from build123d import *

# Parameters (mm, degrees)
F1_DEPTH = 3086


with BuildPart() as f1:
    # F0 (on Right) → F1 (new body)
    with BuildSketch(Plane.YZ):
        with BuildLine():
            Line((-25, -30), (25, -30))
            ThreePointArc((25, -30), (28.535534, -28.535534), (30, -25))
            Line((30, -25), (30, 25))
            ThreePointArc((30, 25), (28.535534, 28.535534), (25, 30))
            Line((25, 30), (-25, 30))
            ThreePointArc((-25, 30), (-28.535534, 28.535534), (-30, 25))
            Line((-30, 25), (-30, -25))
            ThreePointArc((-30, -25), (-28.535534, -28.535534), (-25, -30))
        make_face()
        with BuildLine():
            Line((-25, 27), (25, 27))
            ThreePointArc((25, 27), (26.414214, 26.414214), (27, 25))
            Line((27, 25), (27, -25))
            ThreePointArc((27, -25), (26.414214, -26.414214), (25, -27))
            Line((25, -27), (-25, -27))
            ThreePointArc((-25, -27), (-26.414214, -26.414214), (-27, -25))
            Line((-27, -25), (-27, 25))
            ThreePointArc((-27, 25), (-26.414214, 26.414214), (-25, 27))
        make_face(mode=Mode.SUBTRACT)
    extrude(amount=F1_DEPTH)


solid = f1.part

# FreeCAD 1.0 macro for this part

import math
import FreeCAD as App
import Part
import Sketcher
from FreeCAD import Vector
Q = App.Units.Quantity

doc = App.newDocument("Part")
params = doc.addObject("Spreadsheet::Sheet", "Params")
for row, (alias, value) in enumerate([
    ("sketch1_radius", "5 mm"),
    ("sketch1_radius2", "1.999999 mm"),
    ("sketch1_width", "50 mm"),
    ("pad1_length", "3086 mm"),
], start=1):
    params.set(f"A{row}", alias)
    params.set(f"B{row}", "=" + value)
    params.setAlias(f"B{row}", alias)

body = doc.addObject("PartDesign::Body", "Body")

# Sketch on YZ plane
sketch1 = doc.addObject("Sketcher::SketchObject", "Sketch")
body.addObject(sketch1)
sketch1.AttachmentSupport = (doc.YZ_Plane, [""])
sketch1.MapMode = "FlatFace"
sketch1.addGeometry(Part.LineSegment(Vector(-25, -30, 0), Vector(25, -30, 0)), False)
sketch1.addGeometry(Part.ArcOfCircle(Part.Circle(Vector(25, -25, 0), Vector(0, 0, 1), 5), math.radians(-90), math.radians(0)), False)
sketch1.addGeometry(Part.LineSegment(Vector(30, -25, 0), Vector(30, 25, 0)), False)
sketch1.addGeometry(Part.ArcOfCircle(Part.Circle(Vector(25, 25, 0), Vector(0, 0, 1), 5), math.radians(0), math.radians(90)), False)
sketch1.addGeometry(Part.LineSegment(Vector(25, 30, 0), Vector(-25, 30, 0)), False)
sketch1.addGeometry(Part.ArcOfCircle(Part.Circle(Vector(-25, 25, 0), Vector(0, 0, 1), 5), math.radians(90), math.radians(180)), False)
sketch1.addGeometry(Part.LineSegment(Vector(-30, 25, 0), Vector(-30, -25, 0)), False)
sketch1.addGeometry(Part.ArcOfCircle(Part.Circle(Vector(-25, -25, 0), Vector(0, 0, 1), 5), math.radians(180), math.radians(270)), False)
sketch1.addGeometry(Part.ArcOfCircle(Part.Circle(Vector(-25, 25, 0), Vector(0, 0, 1), 2), math.radians(90), math.radians(180)), False)
sketch1.addGeometry(Part.LineSegment(Vector(-25, 27, 0), Vector(25, 27, 0)), False)
sketch1.addGeometry(Part.ArcOfCircle(Part.Circle(Vector(25, 25, 0), Vector(0, 0, 1), 2), math.radians(0), math.radians(90)), False)
sketch1.addGeometry(Part.LineSegment(Vector(27, 25, 0), Vector(27, -25, 0)), False)
sketch1.addGeometry(Part.ArcOfCircle(Part.Circle(Vector(25, -25, 0), Vector(0, 0, 1), 2), math.radians(-90), math.radians(0)), False)
sketch1.addGeometry(Part.LineSegment(Vector(25, -27, 0), Vector(-25, -27, 0)), False)
sketch1.addGeometry(Part.ArcOfCircle(Part.Circle(Vector(-25, -25, 0), Vector(0, 0, 1), 2), math.radians(180), math.radians(270)), False)
sketch1.addGeometry(Part.LineSegment(Vector(-27, -25, 0), Vector(-27, 25, 0)), False)
sketch1.addConstraint(Sketcher.Constraint("Tangent", 0, 2, 1, 1))
sketch1.addConstraint(Sketcher.Constraint("Tangent", 1, 2, 2, 1))
sketch1.addConstraint(Sketcher.Constraint("Tangent", 2, 2, 3, 1))
sketch1.addConstraint(Sketcher.Constraint("Tangent", 3, 2, 4, 1))
sketch1.addConstraint(Sketcher.Constraint("Tangent", 4, 2, 5, 1))
sketch1.addConstraint(Sketcher.Constraint("Tangent", 5, 2, 6, 1))
sketch1.addConstraint(Sketcher.Constraint("Tangent", 6, 2, 7, 1))
sketch1.addConstraint(Sketcher.Constraint("Tangent", 7, 2, 0, 1))
sketch1.addConstraint(Sketcher.Constraint("Tangent", 8, 1, 9, 1))
sketch1.addConstraint(Sketcher.Constraint("Tangent", 9, 2, 10, 2))
sketch1.addConstraint(Sketcher.Constraint("Tangent", 10, 1, 11, 1))
sketch1.addConstraint(Sketcher.Constraint("Tangent", 11, 2, 12, 2))
sketch1.addConstraint(Sketcher.Constraint("Tangent", 12, 1, 13, 1))
sketch1.addConstraint(Sketcher.Constraint("Tangent", 13, 2, 14, 2))
sketch1.addConstraint(Sketcher.Constraint("Tangent", 14, 1, 15, 1))
sketch1.addConstraint(Sketcher.Constraint("Tangent", 15, 2, 8, 2))
sketch1.addConstraint(Sketcher.Constraint("Horizontal", 0))
sketch1.addConstraint(Sketcher.Constraint("Vertical", 2))
sketch1.addConstraint(Sketcher.Constraint("Horizontal", 4))
sketch1.addConstraint(Sketcher.Constraint("Vertical", 6))
sketch1.addConstraint(Sketcher.Constraint("Horizontal", 9))
sketch1.addConstraint(Sketcher.Constraint("Vertical", 11))
sketch1.addConstraint(Sketcher.Constraint("Horizontal", 13))
sketch1.addConstraint(Sketcher.Constraint("Vertical", 15))
sketch1.addConstraint(Sketcher.Constraint("Coincident", 8, 3, 5, 3))
sketch1.addConstraint(Sketcher.Constraint("Coincident", 10, 3, 3, 3))
sketch1.addConstraint(Sketcher.Constraint("Coincident", 12, 3, 1, 3))
sketch1.addConstraint(Sketcher.Constraint("Equal", 1, 3))
sketch1.addConstraint(Sketcher.Constraint("Equal", 3, 5))
sketch1.addConstraint(Sketcher.Constraint("Equal", 5, 7))
sketch1.addConstraint(Sketcher.Constraint("Equal", 12, 14))
sketch1.addConstraint(Sketcher.Constraint("Symmetric", 1, 3, 5, 3, -1, 1))
sketch1.addConstraint(Sketcher.Constraint("Equal", 13, 2))
sketch1.addConstraint(Sketcher.Constraint("Radius", 1, Q("5 mm")))
sketch1.addConstraint(Sketcher.Constraint("Radius", 8, Q("1.999999 mm")))
sketch1.addConstraint(Sketcher.Constraint("DistanceX", 0, 1, 0, 2, Q("50 mm")))
sketch1.setExpression("Constraints[33]", "Params.sketch1_radius")
sketch1.setExpression("Constraints[34]", "Params.sketch1_radius2")
sketch1.setExpression("Constraints[35]", "Params.sketch1_width")
pad1 = doc.addObject("PartDesign::Pad", "Pad")
body.addObject(pad1)
pad1.Profile = sketch1
pad1.setExpression("Length", "Params.pad1_length")

doc.recompute()
